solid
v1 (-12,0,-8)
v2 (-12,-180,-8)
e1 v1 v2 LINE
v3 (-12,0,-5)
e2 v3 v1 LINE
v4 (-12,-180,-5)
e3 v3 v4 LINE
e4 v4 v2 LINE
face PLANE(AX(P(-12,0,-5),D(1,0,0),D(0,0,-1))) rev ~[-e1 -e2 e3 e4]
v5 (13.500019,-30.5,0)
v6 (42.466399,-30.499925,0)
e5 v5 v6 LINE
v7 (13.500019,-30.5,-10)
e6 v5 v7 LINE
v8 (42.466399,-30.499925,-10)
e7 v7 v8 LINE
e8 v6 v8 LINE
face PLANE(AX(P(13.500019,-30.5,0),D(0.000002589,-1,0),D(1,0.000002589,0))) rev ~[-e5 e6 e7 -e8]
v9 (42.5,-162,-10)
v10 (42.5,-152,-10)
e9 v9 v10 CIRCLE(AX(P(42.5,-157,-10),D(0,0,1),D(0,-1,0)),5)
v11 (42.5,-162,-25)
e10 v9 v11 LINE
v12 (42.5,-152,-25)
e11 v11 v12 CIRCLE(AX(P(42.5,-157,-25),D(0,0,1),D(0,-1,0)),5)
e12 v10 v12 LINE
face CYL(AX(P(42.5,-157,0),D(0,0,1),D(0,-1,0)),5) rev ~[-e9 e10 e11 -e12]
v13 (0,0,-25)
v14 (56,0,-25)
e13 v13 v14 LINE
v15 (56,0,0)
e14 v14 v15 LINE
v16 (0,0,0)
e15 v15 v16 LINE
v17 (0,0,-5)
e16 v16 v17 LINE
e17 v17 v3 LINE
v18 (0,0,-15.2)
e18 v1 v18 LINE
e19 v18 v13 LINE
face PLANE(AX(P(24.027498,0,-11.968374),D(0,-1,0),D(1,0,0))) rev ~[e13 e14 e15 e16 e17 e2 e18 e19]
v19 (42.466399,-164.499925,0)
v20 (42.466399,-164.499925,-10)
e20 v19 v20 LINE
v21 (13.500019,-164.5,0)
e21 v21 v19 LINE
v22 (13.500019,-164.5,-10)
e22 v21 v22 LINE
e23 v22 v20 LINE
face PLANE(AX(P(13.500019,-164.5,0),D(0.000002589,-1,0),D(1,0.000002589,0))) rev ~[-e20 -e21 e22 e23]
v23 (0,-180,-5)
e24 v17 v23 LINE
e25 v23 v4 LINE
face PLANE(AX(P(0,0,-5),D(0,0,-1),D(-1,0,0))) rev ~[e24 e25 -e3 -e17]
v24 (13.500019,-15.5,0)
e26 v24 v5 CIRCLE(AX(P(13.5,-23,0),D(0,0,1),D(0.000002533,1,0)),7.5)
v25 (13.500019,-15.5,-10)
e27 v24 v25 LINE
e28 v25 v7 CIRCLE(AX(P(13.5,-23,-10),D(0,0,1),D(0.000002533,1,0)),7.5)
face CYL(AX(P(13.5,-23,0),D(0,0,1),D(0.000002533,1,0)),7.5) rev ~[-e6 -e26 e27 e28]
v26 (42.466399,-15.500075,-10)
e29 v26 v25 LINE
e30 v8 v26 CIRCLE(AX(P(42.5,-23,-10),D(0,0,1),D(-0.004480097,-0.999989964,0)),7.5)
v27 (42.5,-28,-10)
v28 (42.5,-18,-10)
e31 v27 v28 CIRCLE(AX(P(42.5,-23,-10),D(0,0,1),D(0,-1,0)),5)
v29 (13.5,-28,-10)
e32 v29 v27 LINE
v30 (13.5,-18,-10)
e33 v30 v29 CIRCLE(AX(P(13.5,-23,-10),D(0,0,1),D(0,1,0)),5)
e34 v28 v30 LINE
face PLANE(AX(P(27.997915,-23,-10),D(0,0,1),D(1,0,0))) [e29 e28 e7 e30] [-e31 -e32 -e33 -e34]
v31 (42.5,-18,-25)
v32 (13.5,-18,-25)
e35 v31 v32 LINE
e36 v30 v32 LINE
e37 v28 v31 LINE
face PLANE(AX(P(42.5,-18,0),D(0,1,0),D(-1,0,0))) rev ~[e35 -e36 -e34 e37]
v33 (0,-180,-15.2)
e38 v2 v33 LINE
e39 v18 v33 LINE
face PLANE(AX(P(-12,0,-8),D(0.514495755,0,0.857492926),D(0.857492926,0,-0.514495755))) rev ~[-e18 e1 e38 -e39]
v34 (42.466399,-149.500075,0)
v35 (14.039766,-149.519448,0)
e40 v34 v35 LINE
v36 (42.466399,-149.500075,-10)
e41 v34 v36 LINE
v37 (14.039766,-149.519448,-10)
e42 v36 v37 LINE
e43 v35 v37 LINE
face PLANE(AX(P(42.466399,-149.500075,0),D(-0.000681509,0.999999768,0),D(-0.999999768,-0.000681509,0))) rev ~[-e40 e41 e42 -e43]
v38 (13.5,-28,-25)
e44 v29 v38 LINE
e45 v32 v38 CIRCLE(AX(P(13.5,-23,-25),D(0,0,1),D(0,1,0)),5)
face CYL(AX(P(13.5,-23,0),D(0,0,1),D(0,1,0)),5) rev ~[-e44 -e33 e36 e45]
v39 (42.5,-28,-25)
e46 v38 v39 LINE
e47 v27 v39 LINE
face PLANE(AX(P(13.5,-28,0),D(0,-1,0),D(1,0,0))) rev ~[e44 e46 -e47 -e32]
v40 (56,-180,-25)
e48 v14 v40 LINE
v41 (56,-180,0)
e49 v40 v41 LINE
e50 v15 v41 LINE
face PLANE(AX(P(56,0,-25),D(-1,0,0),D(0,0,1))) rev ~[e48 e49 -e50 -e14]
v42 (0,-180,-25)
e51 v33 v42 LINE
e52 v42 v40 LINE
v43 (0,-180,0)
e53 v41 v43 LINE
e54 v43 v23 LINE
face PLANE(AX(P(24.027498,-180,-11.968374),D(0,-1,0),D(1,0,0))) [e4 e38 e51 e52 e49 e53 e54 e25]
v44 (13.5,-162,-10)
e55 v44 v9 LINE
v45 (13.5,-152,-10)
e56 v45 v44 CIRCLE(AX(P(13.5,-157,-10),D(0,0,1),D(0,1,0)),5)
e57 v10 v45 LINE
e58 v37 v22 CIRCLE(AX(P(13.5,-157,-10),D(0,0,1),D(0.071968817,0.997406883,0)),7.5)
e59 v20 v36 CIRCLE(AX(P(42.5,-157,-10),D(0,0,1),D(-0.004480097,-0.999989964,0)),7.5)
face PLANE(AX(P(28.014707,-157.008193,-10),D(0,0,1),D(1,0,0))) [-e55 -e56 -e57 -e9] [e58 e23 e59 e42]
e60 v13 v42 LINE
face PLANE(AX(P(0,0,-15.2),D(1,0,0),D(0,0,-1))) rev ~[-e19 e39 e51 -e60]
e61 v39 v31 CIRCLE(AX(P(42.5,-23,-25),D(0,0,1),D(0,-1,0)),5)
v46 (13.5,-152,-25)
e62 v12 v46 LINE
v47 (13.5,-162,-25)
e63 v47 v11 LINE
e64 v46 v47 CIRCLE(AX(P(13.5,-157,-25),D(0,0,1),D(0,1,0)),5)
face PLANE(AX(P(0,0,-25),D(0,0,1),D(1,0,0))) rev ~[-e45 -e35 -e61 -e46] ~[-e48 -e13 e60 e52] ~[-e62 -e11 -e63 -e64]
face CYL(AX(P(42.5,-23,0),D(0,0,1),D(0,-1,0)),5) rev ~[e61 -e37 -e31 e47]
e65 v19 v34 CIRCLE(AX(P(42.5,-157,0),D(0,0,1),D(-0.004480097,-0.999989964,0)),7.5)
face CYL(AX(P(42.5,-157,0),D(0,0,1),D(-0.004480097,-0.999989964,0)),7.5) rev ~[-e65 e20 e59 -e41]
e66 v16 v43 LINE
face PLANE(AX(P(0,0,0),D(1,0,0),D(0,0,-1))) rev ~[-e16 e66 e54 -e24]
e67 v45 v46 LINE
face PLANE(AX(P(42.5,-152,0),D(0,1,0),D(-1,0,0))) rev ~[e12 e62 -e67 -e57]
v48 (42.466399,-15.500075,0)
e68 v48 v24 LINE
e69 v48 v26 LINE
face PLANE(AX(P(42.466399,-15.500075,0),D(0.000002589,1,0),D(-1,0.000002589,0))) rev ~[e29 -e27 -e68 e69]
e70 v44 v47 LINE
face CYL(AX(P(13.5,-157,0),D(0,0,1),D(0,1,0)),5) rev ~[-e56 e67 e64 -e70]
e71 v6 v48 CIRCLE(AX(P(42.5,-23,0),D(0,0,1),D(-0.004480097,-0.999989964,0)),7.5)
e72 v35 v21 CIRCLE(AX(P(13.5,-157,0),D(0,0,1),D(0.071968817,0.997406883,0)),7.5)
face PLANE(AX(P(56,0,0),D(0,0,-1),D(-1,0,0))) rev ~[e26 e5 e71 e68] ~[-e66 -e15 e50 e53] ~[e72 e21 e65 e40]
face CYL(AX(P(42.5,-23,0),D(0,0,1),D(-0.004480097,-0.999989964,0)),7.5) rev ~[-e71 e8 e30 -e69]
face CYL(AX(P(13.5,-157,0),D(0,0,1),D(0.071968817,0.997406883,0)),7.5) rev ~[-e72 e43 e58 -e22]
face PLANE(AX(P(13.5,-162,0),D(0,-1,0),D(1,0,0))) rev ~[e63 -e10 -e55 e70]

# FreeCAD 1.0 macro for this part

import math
import FreeCAD as App
import Part
import Sketcher
from FreeCAD import Vector
Q = App.Units.Quantity


def add_polygon(sketch, points):
    """Adds a closed chain of lines whose ends are joined by coincident constraints."""
    first, n = sketch.GeometryCount, len(points)
    for a, b in zip(points, points[1:] + points[:1]):
        sketch.addGeometry(Part.LineSegment(App.Vector(*a, 0), App.Vector(*b, 0)), False)
    for i in range(n):
        sketch.addConstraint(Sketcher.Constraint("Coincident", first + i, 2, first + (i + 1) % n, 1))

doc = App.newDocument("Part")
body = doc.addObject("PartDesign::Body", "Body")

sketch1 = body.newObject("Sketcher::SketchObject", "Sketch")
sketch1.AttachmentSupport = (doc.getObject("XZ_Plane"), [""])
sketch1.MapMode = "FlatFace"
add_polygon(sketch1, [(56, 0), (0, 0), (0, -5), (-12, -5), (-12, -8), (0, -15.2), (0, -25), (56, -25)])
sketch1.addConstraint([
    Sketcher.Constraint("Horizontal", 0),
    Sketcher.Constraint("Vertical", 1),
    Sketcher.Constraint("Horizontal", 2),
    Sketcher.Constraint("Vertical", 3),
    Sketcher.Constraint("Vertical", 5),
    Sketcher.Constraint("Horizontal", 6),
    Sketcher.Constraint("Vertical", 7),
    Sketcher.Constraint("Coincident", 0, 2, -1, 1),
    Sketcher.Constraint("PointOnObject", 4, 2, -2),
    Sketcher.Constraint("DistanceX", 0, 2, 0, 1, Q("56 mm")),
    Sketcher.Constraint("DistanceX", 2, 2, 2, 1, Q("12 mm")),
    Sketcher.Constraint("DistanceY", 1, 2, 1, 1, Q("5 mm")),
    Sketcher.Constraint("DistanceY", 3, 2, 3, 1, Q("3 mm")),
    Sketcher.Constraint("DistanceY", 7, 1, 7, 2, Q("25 mm")),
    Sketcher.Constraint("DistanceY", 5, 2, 5, 1, Q("9.8 mm")),
])
pad1 = body.newObject("PartDesign::Pad", "Pad")
pad1.Profile = sketch1
pad1.Length = 180

sketch2 = body.newObject("Sketcher::SketchObject", "Sketch001")
sketch2.AttachmentSupport = (doc.getObject("XY_Plane"), [""])
sketch2.MapMode = "FlatFace"
sketch2.addGeometry([
    Part.LineSegment(Vector(13.500019, -164.5, 0), Vector(42.466399, -164.499925, 0)),
    Part.ArcOfCircle(Part.Circle(Vector(42.5, -157, 0), Vector(0, 0, 1), 7.5), math.radians(-90.256692), math.radians(90.256692)),
    Part.LineSegment(Vector(42.466399, -149.500075, 0), Vector(14.039766, -149.519448, 0)),
    Part.ArcOfCircle(Part.Circle(Vector(13.5, -157, 0), Vector(0, 0, 1), 7.5), math.radians(85.872923), math.radians(270.000146)),
    Part.LineSegment(Vector(13.500019, -30.5, 0), Vector(42.466399, -30.499925, 0)),
    Part.ArcOfCircle(Part.Circle(Vector(42.5, -23, 0), Vector(0, 0, 1), 7.5), math.radians(-90.256692), math.radians(90.256692)),
    Part.LineSegment(Vector(42.466399, -15.500075, 0), Vector(13.500019, -15.5, 0)),
    Part.ArcOfCircle(Part.Circle(Vector(13.5, -23, 0), Vector(0, 0, 1), 7.5), math.radians(89.999855), math.radians(270.000145)),
], False)
sketch2.addConstraint([
    Sketcher.Constraint("Coincident", 0, 2, 1, 1),
    Sketcher.Constraint("Coincident", 1, 2, 2, 1),
    Sketcher.Constraint("Coincident", 2, 2, 3, 1),
    Sketcher.Constraint("Tangent", 3, 2, 0, 1),
    Sketcher.Constraint("Coincident", 4, 2, 5, 1),
    Sketcher.Constraint("Coincident", 5, 2, 6, 1),
    Sketcher.Constraint("Tangent", 6, 2, 7, 1),
    Sketcher.Constraint("Tangent", 7, 2, 4, 1),
    Sketcher.Constraint("Equal", 1, 3),
    Sketcher.Constraint("Equal", 3, 5),
    Sketcher.Constraint("Equal", 5, 7),
    Sketcher.Constraint("Parallel", 0, 4),
    Sketcher.Constraint("Horizontal", 1, 3, 3, 3),
    Sketcher.Constraint("Horizontal", 5, 3, 7, 3),
    Sketcher.Constraint("Vertical", 1, 3, 5, 3),
    Sketcher.Constraint("Vertical", 3, 3, 7, 3),
    Sketcher.Constraint("Vertical", 0, 2, 1, 2),
    Sketcher.Constraint("Vertical", 4, 2, 5, 2),
    Sketcher.Constraint("Radius", 1, Q("7.5 mm")),
    Sketcher.Constraint("DistanceY", 1, 3, -1, 1, Q("157 mm")),
    Sketcher.Constraint("DistanceY", 5, 3, -1, 1, Q("23 mm")),
    Sketcher.Constraint("DistanceX", 3, 3, 1, 3, Q("29 mm")),
    Sketcher.Constraint("DistanceX", -1, 1, 1, 3, Q("42.5 mm")),
    Sketcher.Constraint("DistanceX", -1, 1, 0, 2, Q("42.466399 mm")),
    Sketcher.Constraint("Distance", 2, Q("28.42664 mm")),
])
pocket1 = body.newObject("PartDesign::Pocket", "Pocket")
pocket1.Profile = sketch2
pocket1.Length = 10

sketch3 = body.newObject("Sketcher::SketchObject", "Sketch002")
sketch3.AttachmentSupport = (doc.getObject("XY_Plane"), [""])
sketch3.MapMode = "FlatFace"
sketch3.addGeometry([
    Part.LineSegment(Vector(42, -18, 0), Vector(14, -18, 0)),
    Part.ArcOfCircle(Part.Circle(Vector(14, -23, 0), Vector(0, 0, 1), 5), math.radians(90), math.radians(270)),
    Part.LineSegment(Vector(14, -28, 0), Vector(42, -28, 0)),
    Part.ArcOfCircle(Part.Circle(Vector(42, -23, 0), Vector(0, 0, 1), 5), math.radians(-90), math.radians(90)),
    Part.LineSegment(Vector(42, -152, 0), Vector(14, -152, 0)),
    Part.ArcOfCircle(Part.Circle(Vector(14, -157, 0), Vector(0, 0, 1), 5), math.radians(90), math.radians(270)),
    Part.LineSegment(Vector(14, -162, 0), Vector(42, -162, 0)),
    Part.ArcOfCircle(Part.Circle(Vector(42, -157, 0), Vector(0, 0, 1), 5), math.radians(-90), math.radians(90)),
], False)
sketch3.addConstraint([
    Sketcher.Constraint("Tangent", 0, 2, 1, 1),
    Sketcher.Constraint("Tangent", 1, 2, 2, 1),
    Sketcher.Constraint("Tangent", 2, 2, 3, 1),
    Sketcher.Constraint("Tangent", 3, 2, 0, 1),
    Sketcher.Constraint("Tangent", 4, 2, 5, 1),
    Sketcher.Constraint("Tangent", 5, 2, 6, 1),
    Sketcher.Constraint("Tangent", 6, 2, 7, 1),
    Sketcher.Constraint("Tangent", 7, 2, 4, 1),
    Sketcher.Constraint("Horizontal", 0),
    Sketcher.Constraint("Horizontal", 2),
    Sketcher.Constraint("Horizontal", 4),
    Sketcher.Constraint("Horizontal", 6),
    Sketcher.Constraint("Equal", 3, 5),
    Sketcher.Constraint("Vertical", 1, 3, 5, 3),
    Sketcher.Constraint("Vertical", 3, 3, 7, 3),
    Sketcher.Constraint("Radius", 1, Q("5 mm")),
    Sketcher.Constraint("DistanceX", 0, 2, 0, 1, Q("29 mm")),
    Sketcher.Constraint("DistanceY", 1, 3, -1, 1, Q("23 mm")),
    Sketcher.Constraint("DistanceY", 5, 3, -1, 1, Q("157 mm")),
    Sketcher.Constraint("DistanceX", -1, 1, 1, 3, Q("13.5 mm")),
])
pocket2 = body.newObject("PartDesign::Pocket", "Pocket001")
pocket2.Profile = sketch3
pocket2.Length = 25

doc.recompute()
